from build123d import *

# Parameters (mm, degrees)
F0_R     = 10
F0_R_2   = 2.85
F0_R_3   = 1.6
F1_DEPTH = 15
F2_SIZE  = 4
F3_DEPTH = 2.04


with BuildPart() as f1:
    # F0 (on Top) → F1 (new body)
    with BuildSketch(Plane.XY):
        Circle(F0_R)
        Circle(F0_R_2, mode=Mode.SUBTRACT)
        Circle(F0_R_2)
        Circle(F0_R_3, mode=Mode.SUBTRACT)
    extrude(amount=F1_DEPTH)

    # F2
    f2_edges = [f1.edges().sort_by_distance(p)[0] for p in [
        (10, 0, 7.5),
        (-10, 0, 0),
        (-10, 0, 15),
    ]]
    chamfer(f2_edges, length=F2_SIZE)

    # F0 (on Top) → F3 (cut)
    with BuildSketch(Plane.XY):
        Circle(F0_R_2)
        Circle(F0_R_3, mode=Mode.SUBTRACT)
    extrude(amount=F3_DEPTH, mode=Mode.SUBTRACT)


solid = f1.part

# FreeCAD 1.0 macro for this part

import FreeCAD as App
import Part
import Sketcher
from FreeCAD import Vector
Q = App.Units.Quantity


def edges_at(feature, points):
    """Names of the edges that pass closest to the given points."""
    edges = feature.Shape.Edges
    near = lambda p: min(range(len(edges)), key=lambda i: edges[i].distToShape(Part.Vertex(*p))[0])
    return sorted({f"Edge{near(p) + 1}" for p in points})

doc = App.newDocument("Part")
body = doc.addObject("PartDesign::Body", "Body")

# Sketch on XY plane
sketch1 = doc.addObject("Sketcher::SketchObject", "Sketch")
body.addObject(sketch1)
sketch1.AttachmentSupport = (doc.XY_Plane, [""])
sketch1.MapMode = "FlatFace"
sketch1.addGeometry(Part.Circle(Vector(0, 0, 0), Vector(0, 0, 1), 10), False)
sketch1.addGeometry(Part.Circle(Vector(0, 0, 0), Vector(0, 0, 1), 1.6), False)
sketch1.addConstraint(Sketcher.Constraint("Coincident", 0, 3, -1, 1))
sketch1.addConstraint(Sketcher.Constraint("Coincident", 1, 3, -1, 1))
sketch1.addConstraint(Sketcher.Constraint("Diameter", 0, Q("20 mm")))
sketch1.addConstraint(Sketcher.Constraint("Diameter", 1, Q("3.2 mm")))
pad1 = doc.addObject("PartDesign::Pad", "Pad")
body.addObject(pad1)
pad1.Profile = sketch1
pad1.Length = 15
doc.recompute()

chamfer = doc.addObject("PartDesign::Chamfer", "Chamfer")
body.addObject(chamfer)
chamfer.Base = (pad1, edges_at(pad1, [(10, 0, 7.5), (-10, 0, 0), (-10, 0, 15)]))
chamfer.Size = 4

# Sketch on XY plane
sketch2 = doc.addObject("Sketcher::SketchObject", "Sketch001")
body.addObject(sketch2)
sketch2.AttachmentSupport = (doc.XY_Plane, [""])
sketch2.MapMode = "FlatFace"
sketch2.addGeometry(Part.Circle(Vector(0, 0, 0), Vector(0, 0, 1), 2.9), False)
sketch2.addGeometry(Part.Circle(Vector(0, 0, 0), Vector(0, 0, 1), 1.6), False)
sketch2.addConstraint(Sketcher.Constraint("Coincident", 0, 3, -1, 1))
sketch2.addConstraint(Sketcher.Constraint("Coincident", 1, 3, -1, 1))
sketch2.addConstraint(Sketcher.Constraint("Diameter", 0, Q("5.7 mm")))
sketch2.addConstraint(Sketcher.Constraint("Diameter", 1, Q("3.2 mm")))
pocket1 = doc.addObject("PartDesign::Pocket", "Pocket")
body.addObject(pocket1)
pocket1.Profile = sketch2
pocket1.Length = 2.04
pocket1.Reversed = True

doc.recompute()
